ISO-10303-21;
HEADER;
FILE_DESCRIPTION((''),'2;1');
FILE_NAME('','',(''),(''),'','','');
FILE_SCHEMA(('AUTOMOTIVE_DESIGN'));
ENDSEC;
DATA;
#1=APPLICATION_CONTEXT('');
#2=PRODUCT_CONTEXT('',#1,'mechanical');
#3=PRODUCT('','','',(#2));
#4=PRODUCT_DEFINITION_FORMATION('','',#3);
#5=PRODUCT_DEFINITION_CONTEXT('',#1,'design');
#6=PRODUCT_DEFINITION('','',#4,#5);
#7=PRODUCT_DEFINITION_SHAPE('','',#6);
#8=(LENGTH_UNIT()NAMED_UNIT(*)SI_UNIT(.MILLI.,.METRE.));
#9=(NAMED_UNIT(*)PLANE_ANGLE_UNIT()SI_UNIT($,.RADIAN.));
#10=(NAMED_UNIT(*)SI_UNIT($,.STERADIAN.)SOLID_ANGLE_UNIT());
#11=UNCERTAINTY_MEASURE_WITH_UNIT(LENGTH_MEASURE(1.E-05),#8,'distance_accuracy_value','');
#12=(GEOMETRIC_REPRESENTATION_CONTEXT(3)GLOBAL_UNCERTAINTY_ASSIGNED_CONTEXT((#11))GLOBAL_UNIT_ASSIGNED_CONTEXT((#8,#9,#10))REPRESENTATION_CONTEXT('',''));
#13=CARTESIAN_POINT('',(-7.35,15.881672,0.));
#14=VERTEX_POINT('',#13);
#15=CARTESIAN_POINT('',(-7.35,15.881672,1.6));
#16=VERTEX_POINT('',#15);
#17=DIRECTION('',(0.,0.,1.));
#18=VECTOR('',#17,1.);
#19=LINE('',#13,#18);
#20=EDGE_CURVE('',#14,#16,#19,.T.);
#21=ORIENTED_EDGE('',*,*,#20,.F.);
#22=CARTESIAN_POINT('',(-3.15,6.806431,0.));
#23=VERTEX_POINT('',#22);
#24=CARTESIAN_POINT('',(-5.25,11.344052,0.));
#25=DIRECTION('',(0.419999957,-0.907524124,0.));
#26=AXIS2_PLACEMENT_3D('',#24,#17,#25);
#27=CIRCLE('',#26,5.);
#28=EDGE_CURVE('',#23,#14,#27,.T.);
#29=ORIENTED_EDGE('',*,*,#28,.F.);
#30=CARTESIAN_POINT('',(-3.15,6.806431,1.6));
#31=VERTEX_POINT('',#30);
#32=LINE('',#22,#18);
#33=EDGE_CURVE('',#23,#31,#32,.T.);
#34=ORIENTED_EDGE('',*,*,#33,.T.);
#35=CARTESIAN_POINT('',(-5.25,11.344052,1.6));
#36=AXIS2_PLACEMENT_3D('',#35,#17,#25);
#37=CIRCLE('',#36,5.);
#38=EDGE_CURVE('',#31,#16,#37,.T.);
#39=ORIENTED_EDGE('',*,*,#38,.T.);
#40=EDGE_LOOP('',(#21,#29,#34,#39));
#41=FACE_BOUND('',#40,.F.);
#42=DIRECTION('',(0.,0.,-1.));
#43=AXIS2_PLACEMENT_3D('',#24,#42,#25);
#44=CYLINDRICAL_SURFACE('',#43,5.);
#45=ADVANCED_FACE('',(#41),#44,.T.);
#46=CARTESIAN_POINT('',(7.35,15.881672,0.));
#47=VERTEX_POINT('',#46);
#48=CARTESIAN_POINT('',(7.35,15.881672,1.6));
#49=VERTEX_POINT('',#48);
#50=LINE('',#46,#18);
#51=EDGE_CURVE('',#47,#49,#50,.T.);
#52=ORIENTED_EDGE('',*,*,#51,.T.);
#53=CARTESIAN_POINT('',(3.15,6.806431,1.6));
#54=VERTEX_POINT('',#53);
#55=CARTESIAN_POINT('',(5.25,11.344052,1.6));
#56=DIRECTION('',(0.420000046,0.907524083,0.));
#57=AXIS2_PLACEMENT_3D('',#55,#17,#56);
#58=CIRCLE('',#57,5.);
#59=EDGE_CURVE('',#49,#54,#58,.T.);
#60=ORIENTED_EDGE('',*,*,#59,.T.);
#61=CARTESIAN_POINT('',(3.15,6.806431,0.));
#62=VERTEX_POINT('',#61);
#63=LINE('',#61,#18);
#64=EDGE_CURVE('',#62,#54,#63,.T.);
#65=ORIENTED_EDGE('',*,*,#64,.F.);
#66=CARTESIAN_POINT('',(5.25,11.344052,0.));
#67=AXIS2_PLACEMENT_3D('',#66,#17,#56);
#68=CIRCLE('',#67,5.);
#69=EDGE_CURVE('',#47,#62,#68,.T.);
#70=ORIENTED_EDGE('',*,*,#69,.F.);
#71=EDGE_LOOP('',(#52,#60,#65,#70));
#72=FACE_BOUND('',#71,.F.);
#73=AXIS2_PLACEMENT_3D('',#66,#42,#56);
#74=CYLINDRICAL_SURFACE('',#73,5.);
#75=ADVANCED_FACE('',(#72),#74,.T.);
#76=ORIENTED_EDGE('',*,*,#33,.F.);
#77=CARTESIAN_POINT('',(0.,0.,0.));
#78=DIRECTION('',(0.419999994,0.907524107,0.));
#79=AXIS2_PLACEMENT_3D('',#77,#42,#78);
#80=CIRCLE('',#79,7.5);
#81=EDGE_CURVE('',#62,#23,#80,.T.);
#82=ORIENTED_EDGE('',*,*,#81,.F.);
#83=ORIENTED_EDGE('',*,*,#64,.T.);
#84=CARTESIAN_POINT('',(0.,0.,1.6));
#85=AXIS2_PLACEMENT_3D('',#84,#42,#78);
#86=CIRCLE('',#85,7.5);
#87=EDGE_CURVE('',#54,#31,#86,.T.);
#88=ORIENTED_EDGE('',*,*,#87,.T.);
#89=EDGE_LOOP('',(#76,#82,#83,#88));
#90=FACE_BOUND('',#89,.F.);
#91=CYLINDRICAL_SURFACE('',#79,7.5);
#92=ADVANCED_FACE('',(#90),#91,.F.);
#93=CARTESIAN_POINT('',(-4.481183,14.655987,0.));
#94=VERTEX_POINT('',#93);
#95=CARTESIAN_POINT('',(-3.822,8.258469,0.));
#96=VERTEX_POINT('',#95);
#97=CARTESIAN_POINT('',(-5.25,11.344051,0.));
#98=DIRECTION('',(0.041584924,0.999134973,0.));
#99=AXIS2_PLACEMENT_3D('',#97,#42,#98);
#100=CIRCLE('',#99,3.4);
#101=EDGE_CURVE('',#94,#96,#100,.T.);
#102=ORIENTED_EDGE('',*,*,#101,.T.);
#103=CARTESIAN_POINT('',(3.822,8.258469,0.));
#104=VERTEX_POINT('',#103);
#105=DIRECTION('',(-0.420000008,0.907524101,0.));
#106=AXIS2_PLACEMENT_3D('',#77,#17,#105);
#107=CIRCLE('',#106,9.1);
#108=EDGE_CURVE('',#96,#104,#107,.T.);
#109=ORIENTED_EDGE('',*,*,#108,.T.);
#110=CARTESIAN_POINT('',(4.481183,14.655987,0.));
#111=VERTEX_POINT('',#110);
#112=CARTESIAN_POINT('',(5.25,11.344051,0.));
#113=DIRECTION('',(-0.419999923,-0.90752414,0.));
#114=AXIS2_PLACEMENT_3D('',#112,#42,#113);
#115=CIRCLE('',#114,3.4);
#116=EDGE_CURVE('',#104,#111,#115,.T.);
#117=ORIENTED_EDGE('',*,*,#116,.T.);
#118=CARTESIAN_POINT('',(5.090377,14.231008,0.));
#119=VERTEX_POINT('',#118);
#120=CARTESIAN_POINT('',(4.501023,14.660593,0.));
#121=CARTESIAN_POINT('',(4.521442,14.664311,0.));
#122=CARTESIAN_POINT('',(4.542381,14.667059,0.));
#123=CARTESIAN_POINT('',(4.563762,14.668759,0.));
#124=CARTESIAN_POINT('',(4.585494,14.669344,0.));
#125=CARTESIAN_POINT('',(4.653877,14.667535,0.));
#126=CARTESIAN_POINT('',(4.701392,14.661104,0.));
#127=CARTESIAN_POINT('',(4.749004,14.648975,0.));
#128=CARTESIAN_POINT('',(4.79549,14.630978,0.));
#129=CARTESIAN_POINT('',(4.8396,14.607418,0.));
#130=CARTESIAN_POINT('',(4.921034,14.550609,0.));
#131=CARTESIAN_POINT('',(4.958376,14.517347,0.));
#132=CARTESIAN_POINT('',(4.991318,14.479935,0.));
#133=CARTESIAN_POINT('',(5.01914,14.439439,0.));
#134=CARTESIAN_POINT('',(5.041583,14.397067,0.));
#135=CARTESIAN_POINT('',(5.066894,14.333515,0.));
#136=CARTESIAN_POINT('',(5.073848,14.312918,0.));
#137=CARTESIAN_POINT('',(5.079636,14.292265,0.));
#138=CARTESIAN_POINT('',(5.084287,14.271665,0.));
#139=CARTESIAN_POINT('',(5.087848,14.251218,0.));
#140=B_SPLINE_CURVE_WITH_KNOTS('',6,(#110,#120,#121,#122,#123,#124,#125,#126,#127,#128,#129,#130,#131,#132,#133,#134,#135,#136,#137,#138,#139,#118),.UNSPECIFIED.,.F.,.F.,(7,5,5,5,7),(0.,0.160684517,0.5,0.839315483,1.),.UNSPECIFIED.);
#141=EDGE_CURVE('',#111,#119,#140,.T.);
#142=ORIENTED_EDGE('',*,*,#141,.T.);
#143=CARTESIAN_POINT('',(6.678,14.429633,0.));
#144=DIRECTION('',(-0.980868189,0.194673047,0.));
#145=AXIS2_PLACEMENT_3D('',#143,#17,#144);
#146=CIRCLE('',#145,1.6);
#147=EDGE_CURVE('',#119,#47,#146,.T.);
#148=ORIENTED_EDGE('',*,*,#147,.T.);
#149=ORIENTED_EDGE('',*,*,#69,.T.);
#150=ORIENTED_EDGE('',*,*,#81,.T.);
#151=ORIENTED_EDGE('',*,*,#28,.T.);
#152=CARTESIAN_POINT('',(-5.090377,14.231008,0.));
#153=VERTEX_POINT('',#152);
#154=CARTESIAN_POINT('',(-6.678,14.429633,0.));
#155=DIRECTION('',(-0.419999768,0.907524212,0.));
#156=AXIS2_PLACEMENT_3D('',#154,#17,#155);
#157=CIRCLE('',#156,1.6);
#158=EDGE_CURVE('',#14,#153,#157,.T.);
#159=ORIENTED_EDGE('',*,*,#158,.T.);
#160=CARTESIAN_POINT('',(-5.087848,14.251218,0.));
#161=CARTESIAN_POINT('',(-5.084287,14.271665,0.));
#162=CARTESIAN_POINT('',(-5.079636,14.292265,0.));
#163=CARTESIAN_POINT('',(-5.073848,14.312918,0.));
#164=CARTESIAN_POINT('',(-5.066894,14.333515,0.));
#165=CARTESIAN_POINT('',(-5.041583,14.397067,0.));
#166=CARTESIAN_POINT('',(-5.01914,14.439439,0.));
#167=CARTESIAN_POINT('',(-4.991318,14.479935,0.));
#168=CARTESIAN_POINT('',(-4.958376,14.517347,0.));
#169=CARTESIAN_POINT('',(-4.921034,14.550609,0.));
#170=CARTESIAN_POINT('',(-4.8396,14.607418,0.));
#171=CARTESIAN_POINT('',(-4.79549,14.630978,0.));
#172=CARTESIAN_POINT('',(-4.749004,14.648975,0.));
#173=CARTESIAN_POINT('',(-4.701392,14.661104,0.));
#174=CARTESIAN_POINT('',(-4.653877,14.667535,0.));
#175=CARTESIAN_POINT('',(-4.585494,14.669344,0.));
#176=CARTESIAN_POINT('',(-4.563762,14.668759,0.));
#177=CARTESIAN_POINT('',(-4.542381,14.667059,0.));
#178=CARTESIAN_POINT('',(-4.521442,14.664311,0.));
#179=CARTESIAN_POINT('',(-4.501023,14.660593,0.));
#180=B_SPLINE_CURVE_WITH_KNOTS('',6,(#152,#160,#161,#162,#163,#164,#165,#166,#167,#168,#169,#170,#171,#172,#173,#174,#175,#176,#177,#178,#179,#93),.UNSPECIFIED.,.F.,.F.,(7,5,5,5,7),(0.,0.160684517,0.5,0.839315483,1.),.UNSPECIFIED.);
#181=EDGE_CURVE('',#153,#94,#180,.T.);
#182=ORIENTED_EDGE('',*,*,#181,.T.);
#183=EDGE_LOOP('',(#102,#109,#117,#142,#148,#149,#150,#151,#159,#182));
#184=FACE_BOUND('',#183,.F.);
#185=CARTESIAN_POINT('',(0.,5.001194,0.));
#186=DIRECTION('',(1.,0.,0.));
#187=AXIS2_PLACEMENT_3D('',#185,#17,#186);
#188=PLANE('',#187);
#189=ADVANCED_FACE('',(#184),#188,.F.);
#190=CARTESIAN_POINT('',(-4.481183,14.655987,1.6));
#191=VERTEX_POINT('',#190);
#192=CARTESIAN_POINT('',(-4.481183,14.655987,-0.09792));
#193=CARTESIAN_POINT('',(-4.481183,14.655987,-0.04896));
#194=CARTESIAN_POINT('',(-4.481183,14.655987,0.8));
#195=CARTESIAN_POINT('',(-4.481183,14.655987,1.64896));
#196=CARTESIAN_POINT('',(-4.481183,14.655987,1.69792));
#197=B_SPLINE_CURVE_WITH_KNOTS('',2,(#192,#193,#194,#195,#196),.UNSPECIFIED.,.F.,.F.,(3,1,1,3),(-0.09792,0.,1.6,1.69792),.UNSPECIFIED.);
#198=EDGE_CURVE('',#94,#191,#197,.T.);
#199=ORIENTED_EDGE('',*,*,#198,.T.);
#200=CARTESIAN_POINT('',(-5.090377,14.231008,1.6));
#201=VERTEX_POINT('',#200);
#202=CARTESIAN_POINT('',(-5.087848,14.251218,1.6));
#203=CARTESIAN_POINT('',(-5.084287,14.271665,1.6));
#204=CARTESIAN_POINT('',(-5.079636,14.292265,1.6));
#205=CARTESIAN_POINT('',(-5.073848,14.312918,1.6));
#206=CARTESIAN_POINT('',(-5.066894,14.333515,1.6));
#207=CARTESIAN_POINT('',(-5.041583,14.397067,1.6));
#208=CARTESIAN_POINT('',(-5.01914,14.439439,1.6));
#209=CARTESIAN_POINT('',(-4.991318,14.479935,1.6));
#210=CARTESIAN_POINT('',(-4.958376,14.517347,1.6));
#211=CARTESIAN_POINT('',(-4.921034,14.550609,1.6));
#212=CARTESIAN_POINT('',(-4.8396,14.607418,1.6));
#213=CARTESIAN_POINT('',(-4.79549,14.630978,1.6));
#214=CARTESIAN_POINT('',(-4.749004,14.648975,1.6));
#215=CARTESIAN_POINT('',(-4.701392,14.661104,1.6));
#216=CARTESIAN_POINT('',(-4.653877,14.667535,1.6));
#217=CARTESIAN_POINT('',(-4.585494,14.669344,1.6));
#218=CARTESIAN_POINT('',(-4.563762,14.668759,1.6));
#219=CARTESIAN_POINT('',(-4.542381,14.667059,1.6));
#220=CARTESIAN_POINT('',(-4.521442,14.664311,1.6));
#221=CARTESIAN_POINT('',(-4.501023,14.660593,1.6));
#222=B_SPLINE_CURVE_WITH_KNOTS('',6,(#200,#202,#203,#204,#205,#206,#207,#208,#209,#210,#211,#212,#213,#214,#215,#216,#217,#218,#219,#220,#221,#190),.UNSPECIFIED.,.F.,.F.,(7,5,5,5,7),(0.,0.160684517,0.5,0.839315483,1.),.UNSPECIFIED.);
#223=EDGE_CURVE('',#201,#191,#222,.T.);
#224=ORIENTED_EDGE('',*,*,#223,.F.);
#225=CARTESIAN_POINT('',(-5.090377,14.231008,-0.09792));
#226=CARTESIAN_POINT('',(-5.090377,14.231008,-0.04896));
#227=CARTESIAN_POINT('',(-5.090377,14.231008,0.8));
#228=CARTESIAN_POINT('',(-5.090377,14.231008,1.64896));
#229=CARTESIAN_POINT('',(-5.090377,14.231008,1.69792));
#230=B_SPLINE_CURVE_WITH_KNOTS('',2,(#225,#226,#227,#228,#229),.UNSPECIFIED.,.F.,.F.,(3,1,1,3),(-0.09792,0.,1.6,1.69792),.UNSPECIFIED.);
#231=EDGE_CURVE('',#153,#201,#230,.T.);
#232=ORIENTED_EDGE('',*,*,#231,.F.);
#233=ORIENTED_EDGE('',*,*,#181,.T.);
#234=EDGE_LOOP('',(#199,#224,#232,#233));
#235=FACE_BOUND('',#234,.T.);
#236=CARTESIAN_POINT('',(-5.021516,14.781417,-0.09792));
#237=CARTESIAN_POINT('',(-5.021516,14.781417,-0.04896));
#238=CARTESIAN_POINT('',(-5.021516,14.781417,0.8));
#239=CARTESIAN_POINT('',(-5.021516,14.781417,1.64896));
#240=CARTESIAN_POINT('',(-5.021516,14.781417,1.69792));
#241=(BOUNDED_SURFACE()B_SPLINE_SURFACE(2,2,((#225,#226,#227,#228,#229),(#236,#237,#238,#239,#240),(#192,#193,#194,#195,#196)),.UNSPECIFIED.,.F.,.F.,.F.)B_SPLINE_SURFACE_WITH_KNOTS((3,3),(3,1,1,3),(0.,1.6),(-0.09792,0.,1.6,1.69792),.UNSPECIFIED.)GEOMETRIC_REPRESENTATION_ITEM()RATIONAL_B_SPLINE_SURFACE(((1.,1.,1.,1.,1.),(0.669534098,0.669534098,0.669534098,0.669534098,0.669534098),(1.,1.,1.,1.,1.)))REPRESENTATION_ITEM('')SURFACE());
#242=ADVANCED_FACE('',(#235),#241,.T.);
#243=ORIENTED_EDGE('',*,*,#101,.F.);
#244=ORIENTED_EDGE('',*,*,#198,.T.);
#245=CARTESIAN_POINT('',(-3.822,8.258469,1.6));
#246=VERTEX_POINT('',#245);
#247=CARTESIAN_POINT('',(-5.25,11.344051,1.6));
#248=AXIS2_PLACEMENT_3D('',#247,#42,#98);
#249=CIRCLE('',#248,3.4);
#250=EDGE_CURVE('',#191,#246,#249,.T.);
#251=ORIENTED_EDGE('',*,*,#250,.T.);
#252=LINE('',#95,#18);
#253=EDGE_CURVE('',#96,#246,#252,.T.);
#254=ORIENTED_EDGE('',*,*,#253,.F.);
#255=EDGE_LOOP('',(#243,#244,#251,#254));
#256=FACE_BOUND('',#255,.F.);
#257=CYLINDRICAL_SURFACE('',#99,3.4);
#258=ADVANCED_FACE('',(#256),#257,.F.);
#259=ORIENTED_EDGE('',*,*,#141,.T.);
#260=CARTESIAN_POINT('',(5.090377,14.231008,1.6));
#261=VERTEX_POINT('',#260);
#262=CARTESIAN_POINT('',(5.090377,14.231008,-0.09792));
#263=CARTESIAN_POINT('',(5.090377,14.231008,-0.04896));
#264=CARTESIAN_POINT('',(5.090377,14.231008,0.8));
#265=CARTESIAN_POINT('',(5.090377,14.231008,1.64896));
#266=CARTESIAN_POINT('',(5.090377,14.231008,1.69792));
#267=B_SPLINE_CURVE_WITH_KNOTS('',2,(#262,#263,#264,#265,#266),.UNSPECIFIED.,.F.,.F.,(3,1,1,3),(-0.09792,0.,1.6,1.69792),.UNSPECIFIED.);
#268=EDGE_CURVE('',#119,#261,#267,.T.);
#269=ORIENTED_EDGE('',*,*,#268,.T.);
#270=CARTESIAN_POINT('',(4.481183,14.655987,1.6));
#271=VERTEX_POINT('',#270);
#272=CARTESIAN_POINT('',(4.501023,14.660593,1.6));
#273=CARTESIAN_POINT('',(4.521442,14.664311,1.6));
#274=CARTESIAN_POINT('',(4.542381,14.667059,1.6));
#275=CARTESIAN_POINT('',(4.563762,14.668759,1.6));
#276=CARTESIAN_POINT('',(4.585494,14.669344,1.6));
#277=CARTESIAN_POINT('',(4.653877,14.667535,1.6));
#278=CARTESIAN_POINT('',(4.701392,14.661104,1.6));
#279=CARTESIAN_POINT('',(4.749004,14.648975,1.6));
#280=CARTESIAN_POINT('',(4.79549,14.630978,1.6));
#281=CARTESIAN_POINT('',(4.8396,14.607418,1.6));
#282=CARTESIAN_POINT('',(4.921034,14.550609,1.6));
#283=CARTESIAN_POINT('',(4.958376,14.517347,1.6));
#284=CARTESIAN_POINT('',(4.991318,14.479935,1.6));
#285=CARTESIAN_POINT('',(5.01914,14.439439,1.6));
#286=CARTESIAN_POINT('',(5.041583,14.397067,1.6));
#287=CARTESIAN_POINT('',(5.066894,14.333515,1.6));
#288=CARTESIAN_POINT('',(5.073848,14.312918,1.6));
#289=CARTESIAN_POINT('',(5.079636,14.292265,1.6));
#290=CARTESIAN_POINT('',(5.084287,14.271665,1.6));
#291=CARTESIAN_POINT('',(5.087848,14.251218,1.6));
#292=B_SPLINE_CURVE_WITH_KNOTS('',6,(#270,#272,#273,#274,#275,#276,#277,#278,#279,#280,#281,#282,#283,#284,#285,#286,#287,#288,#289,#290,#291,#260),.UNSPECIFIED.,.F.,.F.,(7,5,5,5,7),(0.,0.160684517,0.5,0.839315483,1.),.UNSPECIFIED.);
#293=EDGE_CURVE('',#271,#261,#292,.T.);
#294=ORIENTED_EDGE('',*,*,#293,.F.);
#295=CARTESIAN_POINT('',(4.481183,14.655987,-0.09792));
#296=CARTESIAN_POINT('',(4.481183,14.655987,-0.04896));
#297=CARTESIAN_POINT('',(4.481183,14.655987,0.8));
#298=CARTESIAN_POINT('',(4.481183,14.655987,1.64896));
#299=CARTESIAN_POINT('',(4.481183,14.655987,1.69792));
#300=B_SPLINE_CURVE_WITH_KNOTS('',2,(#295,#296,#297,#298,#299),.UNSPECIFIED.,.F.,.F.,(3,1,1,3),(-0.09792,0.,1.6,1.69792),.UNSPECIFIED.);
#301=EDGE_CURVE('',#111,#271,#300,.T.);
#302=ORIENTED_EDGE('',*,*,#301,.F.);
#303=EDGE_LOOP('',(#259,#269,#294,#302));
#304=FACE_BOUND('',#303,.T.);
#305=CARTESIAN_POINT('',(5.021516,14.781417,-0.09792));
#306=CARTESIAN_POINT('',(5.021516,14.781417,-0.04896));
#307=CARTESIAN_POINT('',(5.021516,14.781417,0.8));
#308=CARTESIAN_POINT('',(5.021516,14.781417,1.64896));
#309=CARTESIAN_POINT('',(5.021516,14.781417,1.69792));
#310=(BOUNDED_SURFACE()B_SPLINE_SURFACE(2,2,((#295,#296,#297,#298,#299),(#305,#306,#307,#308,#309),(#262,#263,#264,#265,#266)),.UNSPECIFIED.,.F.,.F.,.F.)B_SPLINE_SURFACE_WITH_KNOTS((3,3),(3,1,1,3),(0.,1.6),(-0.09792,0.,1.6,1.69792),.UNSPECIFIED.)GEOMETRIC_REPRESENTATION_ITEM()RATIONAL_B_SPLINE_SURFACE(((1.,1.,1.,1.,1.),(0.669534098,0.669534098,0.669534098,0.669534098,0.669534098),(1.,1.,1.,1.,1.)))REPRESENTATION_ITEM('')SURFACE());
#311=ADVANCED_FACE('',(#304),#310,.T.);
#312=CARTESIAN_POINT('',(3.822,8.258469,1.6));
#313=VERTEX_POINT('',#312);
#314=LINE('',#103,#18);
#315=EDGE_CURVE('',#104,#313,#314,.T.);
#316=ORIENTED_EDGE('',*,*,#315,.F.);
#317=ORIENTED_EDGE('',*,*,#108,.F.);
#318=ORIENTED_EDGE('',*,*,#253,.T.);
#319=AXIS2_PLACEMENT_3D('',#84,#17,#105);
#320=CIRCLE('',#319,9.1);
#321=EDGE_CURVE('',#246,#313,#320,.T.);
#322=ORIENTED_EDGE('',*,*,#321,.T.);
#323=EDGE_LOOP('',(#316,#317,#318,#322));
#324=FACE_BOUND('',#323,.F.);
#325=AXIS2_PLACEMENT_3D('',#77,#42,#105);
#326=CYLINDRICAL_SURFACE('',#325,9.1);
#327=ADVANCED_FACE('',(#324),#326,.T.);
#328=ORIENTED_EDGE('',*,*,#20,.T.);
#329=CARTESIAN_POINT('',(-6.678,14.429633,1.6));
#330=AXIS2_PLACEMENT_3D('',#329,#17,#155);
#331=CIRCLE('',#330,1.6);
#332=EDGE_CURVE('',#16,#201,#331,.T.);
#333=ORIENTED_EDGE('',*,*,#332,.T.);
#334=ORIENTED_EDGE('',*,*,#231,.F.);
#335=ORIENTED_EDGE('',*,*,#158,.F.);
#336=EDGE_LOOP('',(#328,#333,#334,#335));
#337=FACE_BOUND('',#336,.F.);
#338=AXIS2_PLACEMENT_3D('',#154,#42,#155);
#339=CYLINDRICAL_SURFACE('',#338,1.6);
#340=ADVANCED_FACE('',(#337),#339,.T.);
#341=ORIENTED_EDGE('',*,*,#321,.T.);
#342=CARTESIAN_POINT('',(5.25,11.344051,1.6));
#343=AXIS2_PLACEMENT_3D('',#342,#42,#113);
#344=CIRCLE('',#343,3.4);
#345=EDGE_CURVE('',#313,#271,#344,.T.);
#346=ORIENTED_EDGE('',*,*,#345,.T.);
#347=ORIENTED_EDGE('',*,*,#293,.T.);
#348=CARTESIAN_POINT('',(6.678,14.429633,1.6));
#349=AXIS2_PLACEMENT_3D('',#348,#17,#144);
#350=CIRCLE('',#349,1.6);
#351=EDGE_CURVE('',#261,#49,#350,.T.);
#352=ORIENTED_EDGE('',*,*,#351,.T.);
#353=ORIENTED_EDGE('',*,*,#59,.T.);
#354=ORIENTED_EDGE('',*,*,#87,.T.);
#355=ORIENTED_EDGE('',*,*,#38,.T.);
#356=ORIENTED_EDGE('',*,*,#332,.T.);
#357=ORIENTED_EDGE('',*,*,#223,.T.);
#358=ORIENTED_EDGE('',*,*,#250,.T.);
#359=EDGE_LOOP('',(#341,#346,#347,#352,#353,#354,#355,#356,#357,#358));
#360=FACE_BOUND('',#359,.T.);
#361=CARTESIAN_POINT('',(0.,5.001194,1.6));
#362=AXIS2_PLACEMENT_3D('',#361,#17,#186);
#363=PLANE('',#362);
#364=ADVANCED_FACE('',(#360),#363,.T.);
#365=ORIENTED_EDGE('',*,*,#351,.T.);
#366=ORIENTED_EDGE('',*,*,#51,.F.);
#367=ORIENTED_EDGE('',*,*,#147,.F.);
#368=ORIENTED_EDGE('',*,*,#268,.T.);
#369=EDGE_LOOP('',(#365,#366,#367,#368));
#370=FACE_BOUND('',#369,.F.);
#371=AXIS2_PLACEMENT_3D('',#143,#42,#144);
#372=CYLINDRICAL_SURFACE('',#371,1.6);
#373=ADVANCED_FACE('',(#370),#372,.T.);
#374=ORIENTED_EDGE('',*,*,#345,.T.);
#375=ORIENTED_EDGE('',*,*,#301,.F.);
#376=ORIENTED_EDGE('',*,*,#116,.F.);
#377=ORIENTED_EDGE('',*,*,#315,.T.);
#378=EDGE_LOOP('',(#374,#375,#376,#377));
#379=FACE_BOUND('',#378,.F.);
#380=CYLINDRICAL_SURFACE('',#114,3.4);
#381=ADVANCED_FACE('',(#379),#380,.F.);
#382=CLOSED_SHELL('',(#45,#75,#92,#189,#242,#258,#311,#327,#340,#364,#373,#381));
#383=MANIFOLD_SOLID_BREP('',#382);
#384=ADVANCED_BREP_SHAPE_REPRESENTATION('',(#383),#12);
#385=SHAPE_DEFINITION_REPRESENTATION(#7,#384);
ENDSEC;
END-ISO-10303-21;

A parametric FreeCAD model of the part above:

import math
import FreeCAD as App
import Part
import Sketcher
from FreeCAD import Vector
Q = App.Units.Quantity


def edges_at(feature, points):
    """Names of the edges that pass closest to the given points."""
    edges = feature.Shape.Edges
    near = lambda p: min(range(len(edges)), key=lambda i: edges[i].distToShape(Part.Vertex(*p))[0])
    return sorted({f"Edge{near(p) + 1}" for p in points})

doc = App.newDocument("Part")
body = doc.addObject("PartDesign::Body", "Body")

# Sketch on XY plane
sketch1 = doc.addObject("Sketcher::SketchObject", "Sketch")
body.addObject(sketch1)
sketch1.AttachmentSupport = (doc.XY_Plane, [""])
sketch1.MapMode = "FlatFace"
sketch1.addGeometry(Part.ArcOfCircle(Part.Circle(Vector(0, 0, 0), Vector(0, 0, 1), 7.5), math.radians(115), math.radians(425)), False)
sketch1.addGeometry(Part.ArcOfCircle(Part.Circle(Vector(-5.2, 11.3, 0), Vector(0, 0, 1), 5), math.radians(-65), math.radians(115)), False)
sketch1.addGeometry(Part.ArcOfCircle(Part.Circle(Vector(-6.7, 14.4, 0), Vector(0, 0, 1), 1.6), math.radians(115), math.radians(371)), False)
sketch1.addGeometry(Part.ArcOfCircle(Part.Circle(Vector(-5.2, 11.3, 0), Vector(0, 0, 1), 3.4), math.radians(-65), math.radians(88)), False)
sketch1.addGeometry(Part.ArcOfCircle(Part.Circle(Vector(0, 0, 0), Vector(0, 0, 1), 9.1), math.radians(115), math.radians(425)), False)
sketch1.addGeometry(Part.ArcOfCircle(Part.Circle(Vector(5.2, 11.3, 0), Vector(0, 0, 1), 3.4), math.radians(92), math.radians(245)), False)
sketch1.addGeometry(Part.ArcOfCircle(Part.Circle(Vector(6.7, 14.4, 0), Vector(0, 0, 1), 1.6), math.radians(169), math.radians(425)), False)
sketch1.addGeometry(Part.ArcOfCircle(Part.Circle(Vector(5.2, 11.3, 0), Vector(0, 0, 1), 5), math.radians(65), math.radians(245)), False)
sketch1.addConstraint(Sketcher.Constraint("Tangent", 0, 1, 1, 1))
sketch1.addConstraint(Sketcher.Constraint("Tangent", 1, 2, 2, 1))
sketch1.addConstraint(Sketcher.Constraint("Coincident", 2, 2, 3, 2))
sketch1.addConstraint(Sketcher.Constraint("Tangent", 3, 1, 4, 1))
sketch1.addConstraint(Sketcher.Constraint("Tangent", 4, 2, 5, 2))
sketch1.addConstraint(Sketcher.Constraint("Coincident", 5, 1, 6, 1))
sketch1.addConstraint(Sketcher.Constraint("Tangent", 6, 2, 7, 1))
sketch1.addConstraint(Sketcher.Constraint("Tangent", 7, 2, 0, 2))
sketch1.addConstraint(Sketcher.Constraint("Coincident", 0, 3, -1, 1))
sketch1.addConstraint(Sketcher.Constraint("Coincident", 4, 3, -1, 1))
sketch1.addConstraint(Sketcher.Constraint("Coincident", 3, 3, 1, 3))
sketch1.addConstraint(Sketcher.Constraint("Coincident", 7, 3, 5, 3))
sketch1.addConstraint(Sketcher.Constraint("Equal", 3, 5))
sketch1.addConstraint(Sketcher.Constraint("Equal", 2, 6))
sketch1.addConstraint(Sketcher.Constraint("Symmetric", 2, 2, 5, 1, -2))
sketch1.addConstraint(Sketcher.Constraint("Radius", 1, Q("5 mm")))
sketch1.addConstraint(Sketcher.Constraint("Radius", 0, Q("7.5 mm")))
sketch1.addConstraint(Sketcher.Constraint("Radius", 2, Q("1.6 mm")))
sketch1.addConstraint(Sketcher.Constraint("Radius", 3, Q("3.4 mm")))
sketch1.addConstraint(Sketcher.Constraint("DistanceX", 3, 3, 5, 3, Q("10.499999 mm")))
sketch1.addConstraint(Sketcher.Constraint("DistanceX", 1, 2, 1, 3, Q("2.1 mm")))
pad1 = doc.addObject("PartDesign::Pad", "Pad")
body.addObject(pad1)
pad1.Profile = sketch1
pad1.Length = 1.6
doc.recompute()

fillet = doc.addObject("PartDesign::Fillet", "Fillet")
body.addObject(fillet)
fillet.Base = (pad1, edges_at(pad1, [(5.109, 14.741, 0.8), (-5.109, 14.741, 0.8)]))
fillet.Radius = 0.5

doc.recompute()
